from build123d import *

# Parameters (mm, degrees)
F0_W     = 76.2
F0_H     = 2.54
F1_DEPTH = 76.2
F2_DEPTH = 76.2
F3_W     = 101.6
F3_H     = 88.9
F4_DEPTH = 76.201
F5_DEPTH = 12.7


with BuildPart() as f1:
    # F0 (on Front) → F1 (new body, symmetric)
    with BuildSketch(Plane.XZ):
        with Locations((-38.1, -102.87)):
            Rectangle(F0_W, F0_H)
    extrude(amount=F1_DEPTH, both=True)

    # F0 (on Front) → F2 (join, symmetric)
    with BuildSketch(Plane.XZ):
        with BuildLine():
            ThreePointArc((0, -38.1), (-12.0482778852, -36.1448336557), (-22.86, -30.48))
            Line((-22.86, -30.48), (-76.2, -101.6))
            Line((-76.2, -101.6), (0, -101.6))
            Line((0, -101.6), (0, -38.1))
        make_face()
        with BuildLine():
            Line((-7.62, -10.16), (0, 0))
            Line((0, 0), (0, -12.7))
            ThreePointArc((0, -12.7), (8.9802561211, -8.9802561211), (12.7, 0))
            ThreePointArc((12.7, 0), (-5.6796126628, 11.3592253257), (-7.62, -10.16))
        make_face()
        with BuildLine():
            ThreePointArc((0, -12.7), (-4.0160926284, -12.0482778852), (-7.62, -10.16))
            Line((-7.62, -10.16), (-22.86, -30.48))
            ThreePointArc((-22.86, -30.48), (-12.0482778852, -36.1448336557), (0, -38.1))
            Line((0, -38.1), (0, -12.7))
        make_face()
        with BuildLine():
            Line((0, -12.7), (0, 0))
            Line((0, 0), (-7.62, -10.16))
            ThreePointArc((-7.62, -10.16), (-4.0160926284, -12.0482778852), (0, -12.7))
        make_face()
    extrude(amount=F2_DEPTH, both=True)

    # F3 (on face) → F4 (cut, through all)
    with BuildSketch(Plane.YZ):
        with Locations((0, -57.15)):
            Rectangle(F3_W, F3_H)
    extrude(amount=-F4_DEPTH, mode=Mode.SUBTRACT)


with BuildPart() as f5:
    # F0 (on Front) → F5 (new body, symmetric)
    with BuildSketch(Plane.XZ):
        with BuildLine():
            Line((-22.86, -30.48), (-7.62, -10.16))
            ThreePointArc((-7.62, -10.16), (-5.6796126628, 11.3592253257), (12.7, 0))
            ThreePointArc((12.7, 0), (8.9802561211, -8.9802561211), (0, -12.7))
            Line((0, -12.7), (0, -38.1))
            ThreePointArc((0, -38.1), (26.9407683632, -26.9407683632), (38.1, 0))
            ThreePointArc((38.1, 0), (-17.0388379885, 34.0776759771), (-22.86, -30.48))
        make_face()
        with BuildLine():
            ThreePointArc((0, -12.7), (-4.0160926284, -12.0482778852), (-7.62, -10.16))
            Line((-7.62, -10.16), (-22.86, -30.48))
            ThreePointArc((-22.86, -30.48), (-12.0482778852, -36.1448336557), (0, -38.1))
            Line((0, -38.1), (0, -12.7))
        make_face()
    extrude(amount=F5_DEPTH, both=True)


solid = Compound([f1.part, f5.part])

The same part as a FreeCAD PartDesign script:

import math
import FreeCAD as App
import Part
import Sketcher
Q = App.Units.Quantity


def add_polygon(sketch, points):
    """Adds a closed chain of lines whose ends are joined by coincident constraints."""
    first, n = sketch.GeometryCount, len(points)
    for a, b in zip(points, points[1:] + points[:1]):
        sketch.addGeometry(Part.LineSegment(App.Vector(*a, 0), App.Vector(*b, 0)), False)
    for i in range(n):
        sketch.addConstraint(Sketcher.Constraint("Coincident", first + i, 2, first + (i + 1) % n, 1))

doc = App.newDocument("Part")
params = doc.addObject("Spreadsheet::Sheet", "Params")
for row, (alias, value) in enumerate([
    ("sketch1_width", "3 in"),
    ("sketch1_height", "0.1 in"),
    ("pad1_length", "6 in"),
    ("sketch2_radius", "0.5 in"),
    ("sketch2_width", "3 in"),
    ("sketch2_height", "3.5 in"),
    ("pad2_length", "6 in"),
    ("sketch3_width", "4 in"),
    ("sketch3_height", "3.5 in"),
    ("sketch4_radius", "1.5 in"),
    ("sketch4_radius2", "0.5 in"),
    ("pad3_length", "1 in"),
], start=1):
    params.set(f"A{row}", alias)
    params.set(f"B{row}", "=" + value)
    params.setAlias(f"B{row}", alias)

body = doc.addObject("PartDesign::Body", "Body")

sketch1 = body.newObject("Sketcher::SketchObject", "Sketch")
sketch1.AttachmentSupport = (doc.getObject("XZ_Plane"), [""])
sketch1.MapMode = "FlatFace"
add_polygon(sketch1, [(-76.2, -101.6), (-76.2, -104.14), (0, -104.14), (0, -101.6)])
sketch1.addConstraint([
    Sketcher.Constraint("Vertical", 0),
    Sketcher.Constraint("Horizontal", 1),
    Sketcher.Constraint("Vertical", 2),
    Sketcher.Constraint("Horizontal", 3),
    Sketcher.Constraint("PointOnObject", 1, 2, -2),
    Sketcher.Constraint("DistanceX", 1, 1, 1, 2, Q("3 in")),
    Sketcher.Constraint("DistanceY", 0, 2, 0, 1, Q("0.1 in")),
    Sketcher.Constraint("DistanceY", 2, 2, -1, 1, Q("4 in")),
])
sketch1.setExpression("Constraints[9]", "Params.sketch1_width")
sketch1.setExpression("Constraints[10]", "Params.sketch1_height")
pad1 = body.newObject("PartDesign::Pad", "Pad")
pad1.Profile = sketch1
pad1.setExpression("Length", "Params.pad1_length")
pad1.Midplane = True

sketch2 = body.newObject("Sketcher::SketchObject", "Sketch001")
sketch2.AttachmentSupport = (doc.getObject("XZ_Plane"), [""])
sketch2.MapMode = "FlatFace"
sketch2.addGeometry([
    Part.LineSegment(App.Vector(-76.2, -101.6, 0), App.Vector(0, -101.6, 0)),
    Part.LineSegment(App.Vector(0, -101.6, 0), App.Vector(0, -12.7, 0)),
    Part.ArcOfCircle(Part.Circle(App.Vector(0, 0, 0), App.Vector(0, 0, 1), 12.7), math.radians(-90), math.radians(0)),
    Part.ArcOfCircle(Part.Circle(App.Vector(0, 0, 0), App.Vector(0, 0, 1), 12.7), math.radians(0), math.radians(233.130102)),
    Part.LineSegment(App.Vector(-7.62, -10.16, 0), App.Vector(-76.2, -101.6, 0)),
], False)
sketch2.addConstraint([
    Sketcher.Constraint("Coincident", 0, 2, 1, 1),
    Sketcher.Constraint("Coincident", 1, 2, 2, 1),
    Sketcher.Constraint("Tangent", 2, 2, 3, 1),
    Sketcher.Constraint("Coincident", 3, 2, 4, 1),
    Sketcher.Constraint("Coincident", 4, 2, 0, 1),
    Sketcher.Constraint("Horizontal", 0),
    Sketcher.Constraint("Vertical", 1),
    Sketcher.Constraint("Coincident", 2, 3, -1, 1),
    Sketcher.Constraint("Equal", 2, 3),
    Sketcher.Constraint("PointOnObject", 0, 2, -2),
    Sketcher.Constraint("PointOnObject", 2, 2, -1),
    Sketcher.Constraint("Radius", 2, Q("0.5 in")),
    Sketcher.Constraint("DistanceX", 0, 1, 0, 2, Q("3 in")),
    Sketcher.Constraint("DistanceY", 1, 1, 1, 2, Q("3.5 in")),
    Sketcher.Constraint("DistanceX", 3, 2, -1, 1, Q("0.3 in")),
])
sketch2.setExpression("Constraints[11]", "Params.sketch2_radius")
sketch2.setExpression("Constraints[12]", "Params.sketch2_width")
sketch2.setExpression("Constraints[13]", "Params.sketch2_height")
pad2 = body.newObject("PartDesign::Pad", "Pad001")
pad2.Profile = sketch2
pad2.setExpression("Length", "Params.pad2_length")
pad2.Midplane = True

sketch3 = body.newObject("Sketcher::SketchObject", "Sketch002")
sketch3.AttachmentSupport = (doc.getObject("YZ_Plane"), [""])
sketch3.MapMode = "FlatFace"
add_polygon(sketch3, [(-50.8, -12.7), (-50.8, -101.6), (50.8, -101.6), (50.8, -12.7)])
sketch3.addConstraint([
    Sketcher.Constraint("Vertical", 0),
    Sketcher.Constraint("Horizontal", 1),
    Sketcher.Constraint("Vertical", 2),
    Sketcher.Constraint("Horizontal", 3),
    Sketcher.Constraint("DistanceX", 1, 1, 1, 2, Q("4 in")),
    Sketcher.Constraint("DistanceY", 0, 2, 0, 1, Q("3.5 in")),
    Sketcher.Constraint("DistanceX", 0, 2, -1, 1, Q("2 in")),
    Sketcher.Constraint("DistanceY", 0, 2, -1, 1, Q("4 in")),
])
sketch3.setExpression("Constraints[8]", "Params.sketch3_width")
sketch3.setExpression("Constraints[9]", "Params.sketch3_height")
pocket1 = body.newObject("PartDesign::Pocket", "Pocket")
pocket1.Profile = sketch3
pocket1.Type = "ThroughAll"
body2 = doc.addObject("PartDesign::Body", "Body001")

sketch4 = body2.newObject("Sketcher::SketchObject", "Sketch003")
sketch4.AttachmentSupport = (doc.getObject("XZ_Plane001"), [""])
sketch4.MapMode = "FlatFace"
sketch4.addGeometry([
    Part.ArcOfCircle(Part.Circle(App.Vector(0, 0, 0), App.Vector(0, 0, 1), 38.1), math.radians(-90), math.radians(233.130102)),
    Part.ArcOfCircle(Part.Circle(App.Vector(0, 0, 0), App.Vector(0, 0, 1), 38.1), math.radians(-126.869898), math.radians(-90)),
    Part.ArcOfCircle(Part.Circle(App.Vector(0, 0, 0), App.Vector(0, 0, 1), 12.7), math.radians(0), math.radians(233.130102)),
    Part.ArcOfCircle(Part.Circle(App.Vector(0, 0, 0), App.Vector(0, 0, 1), 12.7), math.radians(-90), math.radians(0)),
    Part.ArcOfCircle(Part.Circle(App.Vector(0, 0, 0), App.Vector(0, 0, 1), 12.7), math.radians(-126.869898), math.radians(-90)),
], False)
sketch4.addConstraint([
    Sketcher.Constraint("Tangent", 0, 1, 1, 2),
    Sketcher.Constraint("Coincident", 1, 1, 0, 2),
    Sketcher.Constraint("Tangent", 2, 1, 3, 2),
    Sketcher.Constraint("Tangent", 3, 1, 4, 2),
    Sketcher.Constraint("Tangent", 4, 1, 2, 2),
    Sketcher.Constraint("Coincident", 0, 3, -1, 1),
    Sketcher.Constraint("Coincident", 2, 3, -1, 1),
    Sketcher.Constraint("PointOnObject", 0, 1, -2),
    Sketcher.Constraint("PointOnObject", 2, 1, -1),
    Sketcher.Constraint("PointOnObject", 3, 1, -2),
    Sketcher.Constraint("Radius", 0, Q("1.5 in")),
    Sketcher.Constraint("Radius", 2, Q("0.5 in")),
    Sketcher.Constraint("DistanceX", 1, 1, -1, 1, Q("0.9 in")),
    Sketcher.Constraint("DistanceX", 4, 1, -1, 1, Q("0.3 in")),
])
sketch4.setExpression("Constraints[10]", "Params.sketch4_radius")
sketch4.setExpression("Constraints[11]", "Params.sketch4_radius2")
pad3 = body2.newObject("PartDesign::Pad", "Pad002")
pad3.Profile = sketch4
pad3.setExpression("Length", "Params.pad3_length")
pad3.Midplane = True

doc.recompute()
